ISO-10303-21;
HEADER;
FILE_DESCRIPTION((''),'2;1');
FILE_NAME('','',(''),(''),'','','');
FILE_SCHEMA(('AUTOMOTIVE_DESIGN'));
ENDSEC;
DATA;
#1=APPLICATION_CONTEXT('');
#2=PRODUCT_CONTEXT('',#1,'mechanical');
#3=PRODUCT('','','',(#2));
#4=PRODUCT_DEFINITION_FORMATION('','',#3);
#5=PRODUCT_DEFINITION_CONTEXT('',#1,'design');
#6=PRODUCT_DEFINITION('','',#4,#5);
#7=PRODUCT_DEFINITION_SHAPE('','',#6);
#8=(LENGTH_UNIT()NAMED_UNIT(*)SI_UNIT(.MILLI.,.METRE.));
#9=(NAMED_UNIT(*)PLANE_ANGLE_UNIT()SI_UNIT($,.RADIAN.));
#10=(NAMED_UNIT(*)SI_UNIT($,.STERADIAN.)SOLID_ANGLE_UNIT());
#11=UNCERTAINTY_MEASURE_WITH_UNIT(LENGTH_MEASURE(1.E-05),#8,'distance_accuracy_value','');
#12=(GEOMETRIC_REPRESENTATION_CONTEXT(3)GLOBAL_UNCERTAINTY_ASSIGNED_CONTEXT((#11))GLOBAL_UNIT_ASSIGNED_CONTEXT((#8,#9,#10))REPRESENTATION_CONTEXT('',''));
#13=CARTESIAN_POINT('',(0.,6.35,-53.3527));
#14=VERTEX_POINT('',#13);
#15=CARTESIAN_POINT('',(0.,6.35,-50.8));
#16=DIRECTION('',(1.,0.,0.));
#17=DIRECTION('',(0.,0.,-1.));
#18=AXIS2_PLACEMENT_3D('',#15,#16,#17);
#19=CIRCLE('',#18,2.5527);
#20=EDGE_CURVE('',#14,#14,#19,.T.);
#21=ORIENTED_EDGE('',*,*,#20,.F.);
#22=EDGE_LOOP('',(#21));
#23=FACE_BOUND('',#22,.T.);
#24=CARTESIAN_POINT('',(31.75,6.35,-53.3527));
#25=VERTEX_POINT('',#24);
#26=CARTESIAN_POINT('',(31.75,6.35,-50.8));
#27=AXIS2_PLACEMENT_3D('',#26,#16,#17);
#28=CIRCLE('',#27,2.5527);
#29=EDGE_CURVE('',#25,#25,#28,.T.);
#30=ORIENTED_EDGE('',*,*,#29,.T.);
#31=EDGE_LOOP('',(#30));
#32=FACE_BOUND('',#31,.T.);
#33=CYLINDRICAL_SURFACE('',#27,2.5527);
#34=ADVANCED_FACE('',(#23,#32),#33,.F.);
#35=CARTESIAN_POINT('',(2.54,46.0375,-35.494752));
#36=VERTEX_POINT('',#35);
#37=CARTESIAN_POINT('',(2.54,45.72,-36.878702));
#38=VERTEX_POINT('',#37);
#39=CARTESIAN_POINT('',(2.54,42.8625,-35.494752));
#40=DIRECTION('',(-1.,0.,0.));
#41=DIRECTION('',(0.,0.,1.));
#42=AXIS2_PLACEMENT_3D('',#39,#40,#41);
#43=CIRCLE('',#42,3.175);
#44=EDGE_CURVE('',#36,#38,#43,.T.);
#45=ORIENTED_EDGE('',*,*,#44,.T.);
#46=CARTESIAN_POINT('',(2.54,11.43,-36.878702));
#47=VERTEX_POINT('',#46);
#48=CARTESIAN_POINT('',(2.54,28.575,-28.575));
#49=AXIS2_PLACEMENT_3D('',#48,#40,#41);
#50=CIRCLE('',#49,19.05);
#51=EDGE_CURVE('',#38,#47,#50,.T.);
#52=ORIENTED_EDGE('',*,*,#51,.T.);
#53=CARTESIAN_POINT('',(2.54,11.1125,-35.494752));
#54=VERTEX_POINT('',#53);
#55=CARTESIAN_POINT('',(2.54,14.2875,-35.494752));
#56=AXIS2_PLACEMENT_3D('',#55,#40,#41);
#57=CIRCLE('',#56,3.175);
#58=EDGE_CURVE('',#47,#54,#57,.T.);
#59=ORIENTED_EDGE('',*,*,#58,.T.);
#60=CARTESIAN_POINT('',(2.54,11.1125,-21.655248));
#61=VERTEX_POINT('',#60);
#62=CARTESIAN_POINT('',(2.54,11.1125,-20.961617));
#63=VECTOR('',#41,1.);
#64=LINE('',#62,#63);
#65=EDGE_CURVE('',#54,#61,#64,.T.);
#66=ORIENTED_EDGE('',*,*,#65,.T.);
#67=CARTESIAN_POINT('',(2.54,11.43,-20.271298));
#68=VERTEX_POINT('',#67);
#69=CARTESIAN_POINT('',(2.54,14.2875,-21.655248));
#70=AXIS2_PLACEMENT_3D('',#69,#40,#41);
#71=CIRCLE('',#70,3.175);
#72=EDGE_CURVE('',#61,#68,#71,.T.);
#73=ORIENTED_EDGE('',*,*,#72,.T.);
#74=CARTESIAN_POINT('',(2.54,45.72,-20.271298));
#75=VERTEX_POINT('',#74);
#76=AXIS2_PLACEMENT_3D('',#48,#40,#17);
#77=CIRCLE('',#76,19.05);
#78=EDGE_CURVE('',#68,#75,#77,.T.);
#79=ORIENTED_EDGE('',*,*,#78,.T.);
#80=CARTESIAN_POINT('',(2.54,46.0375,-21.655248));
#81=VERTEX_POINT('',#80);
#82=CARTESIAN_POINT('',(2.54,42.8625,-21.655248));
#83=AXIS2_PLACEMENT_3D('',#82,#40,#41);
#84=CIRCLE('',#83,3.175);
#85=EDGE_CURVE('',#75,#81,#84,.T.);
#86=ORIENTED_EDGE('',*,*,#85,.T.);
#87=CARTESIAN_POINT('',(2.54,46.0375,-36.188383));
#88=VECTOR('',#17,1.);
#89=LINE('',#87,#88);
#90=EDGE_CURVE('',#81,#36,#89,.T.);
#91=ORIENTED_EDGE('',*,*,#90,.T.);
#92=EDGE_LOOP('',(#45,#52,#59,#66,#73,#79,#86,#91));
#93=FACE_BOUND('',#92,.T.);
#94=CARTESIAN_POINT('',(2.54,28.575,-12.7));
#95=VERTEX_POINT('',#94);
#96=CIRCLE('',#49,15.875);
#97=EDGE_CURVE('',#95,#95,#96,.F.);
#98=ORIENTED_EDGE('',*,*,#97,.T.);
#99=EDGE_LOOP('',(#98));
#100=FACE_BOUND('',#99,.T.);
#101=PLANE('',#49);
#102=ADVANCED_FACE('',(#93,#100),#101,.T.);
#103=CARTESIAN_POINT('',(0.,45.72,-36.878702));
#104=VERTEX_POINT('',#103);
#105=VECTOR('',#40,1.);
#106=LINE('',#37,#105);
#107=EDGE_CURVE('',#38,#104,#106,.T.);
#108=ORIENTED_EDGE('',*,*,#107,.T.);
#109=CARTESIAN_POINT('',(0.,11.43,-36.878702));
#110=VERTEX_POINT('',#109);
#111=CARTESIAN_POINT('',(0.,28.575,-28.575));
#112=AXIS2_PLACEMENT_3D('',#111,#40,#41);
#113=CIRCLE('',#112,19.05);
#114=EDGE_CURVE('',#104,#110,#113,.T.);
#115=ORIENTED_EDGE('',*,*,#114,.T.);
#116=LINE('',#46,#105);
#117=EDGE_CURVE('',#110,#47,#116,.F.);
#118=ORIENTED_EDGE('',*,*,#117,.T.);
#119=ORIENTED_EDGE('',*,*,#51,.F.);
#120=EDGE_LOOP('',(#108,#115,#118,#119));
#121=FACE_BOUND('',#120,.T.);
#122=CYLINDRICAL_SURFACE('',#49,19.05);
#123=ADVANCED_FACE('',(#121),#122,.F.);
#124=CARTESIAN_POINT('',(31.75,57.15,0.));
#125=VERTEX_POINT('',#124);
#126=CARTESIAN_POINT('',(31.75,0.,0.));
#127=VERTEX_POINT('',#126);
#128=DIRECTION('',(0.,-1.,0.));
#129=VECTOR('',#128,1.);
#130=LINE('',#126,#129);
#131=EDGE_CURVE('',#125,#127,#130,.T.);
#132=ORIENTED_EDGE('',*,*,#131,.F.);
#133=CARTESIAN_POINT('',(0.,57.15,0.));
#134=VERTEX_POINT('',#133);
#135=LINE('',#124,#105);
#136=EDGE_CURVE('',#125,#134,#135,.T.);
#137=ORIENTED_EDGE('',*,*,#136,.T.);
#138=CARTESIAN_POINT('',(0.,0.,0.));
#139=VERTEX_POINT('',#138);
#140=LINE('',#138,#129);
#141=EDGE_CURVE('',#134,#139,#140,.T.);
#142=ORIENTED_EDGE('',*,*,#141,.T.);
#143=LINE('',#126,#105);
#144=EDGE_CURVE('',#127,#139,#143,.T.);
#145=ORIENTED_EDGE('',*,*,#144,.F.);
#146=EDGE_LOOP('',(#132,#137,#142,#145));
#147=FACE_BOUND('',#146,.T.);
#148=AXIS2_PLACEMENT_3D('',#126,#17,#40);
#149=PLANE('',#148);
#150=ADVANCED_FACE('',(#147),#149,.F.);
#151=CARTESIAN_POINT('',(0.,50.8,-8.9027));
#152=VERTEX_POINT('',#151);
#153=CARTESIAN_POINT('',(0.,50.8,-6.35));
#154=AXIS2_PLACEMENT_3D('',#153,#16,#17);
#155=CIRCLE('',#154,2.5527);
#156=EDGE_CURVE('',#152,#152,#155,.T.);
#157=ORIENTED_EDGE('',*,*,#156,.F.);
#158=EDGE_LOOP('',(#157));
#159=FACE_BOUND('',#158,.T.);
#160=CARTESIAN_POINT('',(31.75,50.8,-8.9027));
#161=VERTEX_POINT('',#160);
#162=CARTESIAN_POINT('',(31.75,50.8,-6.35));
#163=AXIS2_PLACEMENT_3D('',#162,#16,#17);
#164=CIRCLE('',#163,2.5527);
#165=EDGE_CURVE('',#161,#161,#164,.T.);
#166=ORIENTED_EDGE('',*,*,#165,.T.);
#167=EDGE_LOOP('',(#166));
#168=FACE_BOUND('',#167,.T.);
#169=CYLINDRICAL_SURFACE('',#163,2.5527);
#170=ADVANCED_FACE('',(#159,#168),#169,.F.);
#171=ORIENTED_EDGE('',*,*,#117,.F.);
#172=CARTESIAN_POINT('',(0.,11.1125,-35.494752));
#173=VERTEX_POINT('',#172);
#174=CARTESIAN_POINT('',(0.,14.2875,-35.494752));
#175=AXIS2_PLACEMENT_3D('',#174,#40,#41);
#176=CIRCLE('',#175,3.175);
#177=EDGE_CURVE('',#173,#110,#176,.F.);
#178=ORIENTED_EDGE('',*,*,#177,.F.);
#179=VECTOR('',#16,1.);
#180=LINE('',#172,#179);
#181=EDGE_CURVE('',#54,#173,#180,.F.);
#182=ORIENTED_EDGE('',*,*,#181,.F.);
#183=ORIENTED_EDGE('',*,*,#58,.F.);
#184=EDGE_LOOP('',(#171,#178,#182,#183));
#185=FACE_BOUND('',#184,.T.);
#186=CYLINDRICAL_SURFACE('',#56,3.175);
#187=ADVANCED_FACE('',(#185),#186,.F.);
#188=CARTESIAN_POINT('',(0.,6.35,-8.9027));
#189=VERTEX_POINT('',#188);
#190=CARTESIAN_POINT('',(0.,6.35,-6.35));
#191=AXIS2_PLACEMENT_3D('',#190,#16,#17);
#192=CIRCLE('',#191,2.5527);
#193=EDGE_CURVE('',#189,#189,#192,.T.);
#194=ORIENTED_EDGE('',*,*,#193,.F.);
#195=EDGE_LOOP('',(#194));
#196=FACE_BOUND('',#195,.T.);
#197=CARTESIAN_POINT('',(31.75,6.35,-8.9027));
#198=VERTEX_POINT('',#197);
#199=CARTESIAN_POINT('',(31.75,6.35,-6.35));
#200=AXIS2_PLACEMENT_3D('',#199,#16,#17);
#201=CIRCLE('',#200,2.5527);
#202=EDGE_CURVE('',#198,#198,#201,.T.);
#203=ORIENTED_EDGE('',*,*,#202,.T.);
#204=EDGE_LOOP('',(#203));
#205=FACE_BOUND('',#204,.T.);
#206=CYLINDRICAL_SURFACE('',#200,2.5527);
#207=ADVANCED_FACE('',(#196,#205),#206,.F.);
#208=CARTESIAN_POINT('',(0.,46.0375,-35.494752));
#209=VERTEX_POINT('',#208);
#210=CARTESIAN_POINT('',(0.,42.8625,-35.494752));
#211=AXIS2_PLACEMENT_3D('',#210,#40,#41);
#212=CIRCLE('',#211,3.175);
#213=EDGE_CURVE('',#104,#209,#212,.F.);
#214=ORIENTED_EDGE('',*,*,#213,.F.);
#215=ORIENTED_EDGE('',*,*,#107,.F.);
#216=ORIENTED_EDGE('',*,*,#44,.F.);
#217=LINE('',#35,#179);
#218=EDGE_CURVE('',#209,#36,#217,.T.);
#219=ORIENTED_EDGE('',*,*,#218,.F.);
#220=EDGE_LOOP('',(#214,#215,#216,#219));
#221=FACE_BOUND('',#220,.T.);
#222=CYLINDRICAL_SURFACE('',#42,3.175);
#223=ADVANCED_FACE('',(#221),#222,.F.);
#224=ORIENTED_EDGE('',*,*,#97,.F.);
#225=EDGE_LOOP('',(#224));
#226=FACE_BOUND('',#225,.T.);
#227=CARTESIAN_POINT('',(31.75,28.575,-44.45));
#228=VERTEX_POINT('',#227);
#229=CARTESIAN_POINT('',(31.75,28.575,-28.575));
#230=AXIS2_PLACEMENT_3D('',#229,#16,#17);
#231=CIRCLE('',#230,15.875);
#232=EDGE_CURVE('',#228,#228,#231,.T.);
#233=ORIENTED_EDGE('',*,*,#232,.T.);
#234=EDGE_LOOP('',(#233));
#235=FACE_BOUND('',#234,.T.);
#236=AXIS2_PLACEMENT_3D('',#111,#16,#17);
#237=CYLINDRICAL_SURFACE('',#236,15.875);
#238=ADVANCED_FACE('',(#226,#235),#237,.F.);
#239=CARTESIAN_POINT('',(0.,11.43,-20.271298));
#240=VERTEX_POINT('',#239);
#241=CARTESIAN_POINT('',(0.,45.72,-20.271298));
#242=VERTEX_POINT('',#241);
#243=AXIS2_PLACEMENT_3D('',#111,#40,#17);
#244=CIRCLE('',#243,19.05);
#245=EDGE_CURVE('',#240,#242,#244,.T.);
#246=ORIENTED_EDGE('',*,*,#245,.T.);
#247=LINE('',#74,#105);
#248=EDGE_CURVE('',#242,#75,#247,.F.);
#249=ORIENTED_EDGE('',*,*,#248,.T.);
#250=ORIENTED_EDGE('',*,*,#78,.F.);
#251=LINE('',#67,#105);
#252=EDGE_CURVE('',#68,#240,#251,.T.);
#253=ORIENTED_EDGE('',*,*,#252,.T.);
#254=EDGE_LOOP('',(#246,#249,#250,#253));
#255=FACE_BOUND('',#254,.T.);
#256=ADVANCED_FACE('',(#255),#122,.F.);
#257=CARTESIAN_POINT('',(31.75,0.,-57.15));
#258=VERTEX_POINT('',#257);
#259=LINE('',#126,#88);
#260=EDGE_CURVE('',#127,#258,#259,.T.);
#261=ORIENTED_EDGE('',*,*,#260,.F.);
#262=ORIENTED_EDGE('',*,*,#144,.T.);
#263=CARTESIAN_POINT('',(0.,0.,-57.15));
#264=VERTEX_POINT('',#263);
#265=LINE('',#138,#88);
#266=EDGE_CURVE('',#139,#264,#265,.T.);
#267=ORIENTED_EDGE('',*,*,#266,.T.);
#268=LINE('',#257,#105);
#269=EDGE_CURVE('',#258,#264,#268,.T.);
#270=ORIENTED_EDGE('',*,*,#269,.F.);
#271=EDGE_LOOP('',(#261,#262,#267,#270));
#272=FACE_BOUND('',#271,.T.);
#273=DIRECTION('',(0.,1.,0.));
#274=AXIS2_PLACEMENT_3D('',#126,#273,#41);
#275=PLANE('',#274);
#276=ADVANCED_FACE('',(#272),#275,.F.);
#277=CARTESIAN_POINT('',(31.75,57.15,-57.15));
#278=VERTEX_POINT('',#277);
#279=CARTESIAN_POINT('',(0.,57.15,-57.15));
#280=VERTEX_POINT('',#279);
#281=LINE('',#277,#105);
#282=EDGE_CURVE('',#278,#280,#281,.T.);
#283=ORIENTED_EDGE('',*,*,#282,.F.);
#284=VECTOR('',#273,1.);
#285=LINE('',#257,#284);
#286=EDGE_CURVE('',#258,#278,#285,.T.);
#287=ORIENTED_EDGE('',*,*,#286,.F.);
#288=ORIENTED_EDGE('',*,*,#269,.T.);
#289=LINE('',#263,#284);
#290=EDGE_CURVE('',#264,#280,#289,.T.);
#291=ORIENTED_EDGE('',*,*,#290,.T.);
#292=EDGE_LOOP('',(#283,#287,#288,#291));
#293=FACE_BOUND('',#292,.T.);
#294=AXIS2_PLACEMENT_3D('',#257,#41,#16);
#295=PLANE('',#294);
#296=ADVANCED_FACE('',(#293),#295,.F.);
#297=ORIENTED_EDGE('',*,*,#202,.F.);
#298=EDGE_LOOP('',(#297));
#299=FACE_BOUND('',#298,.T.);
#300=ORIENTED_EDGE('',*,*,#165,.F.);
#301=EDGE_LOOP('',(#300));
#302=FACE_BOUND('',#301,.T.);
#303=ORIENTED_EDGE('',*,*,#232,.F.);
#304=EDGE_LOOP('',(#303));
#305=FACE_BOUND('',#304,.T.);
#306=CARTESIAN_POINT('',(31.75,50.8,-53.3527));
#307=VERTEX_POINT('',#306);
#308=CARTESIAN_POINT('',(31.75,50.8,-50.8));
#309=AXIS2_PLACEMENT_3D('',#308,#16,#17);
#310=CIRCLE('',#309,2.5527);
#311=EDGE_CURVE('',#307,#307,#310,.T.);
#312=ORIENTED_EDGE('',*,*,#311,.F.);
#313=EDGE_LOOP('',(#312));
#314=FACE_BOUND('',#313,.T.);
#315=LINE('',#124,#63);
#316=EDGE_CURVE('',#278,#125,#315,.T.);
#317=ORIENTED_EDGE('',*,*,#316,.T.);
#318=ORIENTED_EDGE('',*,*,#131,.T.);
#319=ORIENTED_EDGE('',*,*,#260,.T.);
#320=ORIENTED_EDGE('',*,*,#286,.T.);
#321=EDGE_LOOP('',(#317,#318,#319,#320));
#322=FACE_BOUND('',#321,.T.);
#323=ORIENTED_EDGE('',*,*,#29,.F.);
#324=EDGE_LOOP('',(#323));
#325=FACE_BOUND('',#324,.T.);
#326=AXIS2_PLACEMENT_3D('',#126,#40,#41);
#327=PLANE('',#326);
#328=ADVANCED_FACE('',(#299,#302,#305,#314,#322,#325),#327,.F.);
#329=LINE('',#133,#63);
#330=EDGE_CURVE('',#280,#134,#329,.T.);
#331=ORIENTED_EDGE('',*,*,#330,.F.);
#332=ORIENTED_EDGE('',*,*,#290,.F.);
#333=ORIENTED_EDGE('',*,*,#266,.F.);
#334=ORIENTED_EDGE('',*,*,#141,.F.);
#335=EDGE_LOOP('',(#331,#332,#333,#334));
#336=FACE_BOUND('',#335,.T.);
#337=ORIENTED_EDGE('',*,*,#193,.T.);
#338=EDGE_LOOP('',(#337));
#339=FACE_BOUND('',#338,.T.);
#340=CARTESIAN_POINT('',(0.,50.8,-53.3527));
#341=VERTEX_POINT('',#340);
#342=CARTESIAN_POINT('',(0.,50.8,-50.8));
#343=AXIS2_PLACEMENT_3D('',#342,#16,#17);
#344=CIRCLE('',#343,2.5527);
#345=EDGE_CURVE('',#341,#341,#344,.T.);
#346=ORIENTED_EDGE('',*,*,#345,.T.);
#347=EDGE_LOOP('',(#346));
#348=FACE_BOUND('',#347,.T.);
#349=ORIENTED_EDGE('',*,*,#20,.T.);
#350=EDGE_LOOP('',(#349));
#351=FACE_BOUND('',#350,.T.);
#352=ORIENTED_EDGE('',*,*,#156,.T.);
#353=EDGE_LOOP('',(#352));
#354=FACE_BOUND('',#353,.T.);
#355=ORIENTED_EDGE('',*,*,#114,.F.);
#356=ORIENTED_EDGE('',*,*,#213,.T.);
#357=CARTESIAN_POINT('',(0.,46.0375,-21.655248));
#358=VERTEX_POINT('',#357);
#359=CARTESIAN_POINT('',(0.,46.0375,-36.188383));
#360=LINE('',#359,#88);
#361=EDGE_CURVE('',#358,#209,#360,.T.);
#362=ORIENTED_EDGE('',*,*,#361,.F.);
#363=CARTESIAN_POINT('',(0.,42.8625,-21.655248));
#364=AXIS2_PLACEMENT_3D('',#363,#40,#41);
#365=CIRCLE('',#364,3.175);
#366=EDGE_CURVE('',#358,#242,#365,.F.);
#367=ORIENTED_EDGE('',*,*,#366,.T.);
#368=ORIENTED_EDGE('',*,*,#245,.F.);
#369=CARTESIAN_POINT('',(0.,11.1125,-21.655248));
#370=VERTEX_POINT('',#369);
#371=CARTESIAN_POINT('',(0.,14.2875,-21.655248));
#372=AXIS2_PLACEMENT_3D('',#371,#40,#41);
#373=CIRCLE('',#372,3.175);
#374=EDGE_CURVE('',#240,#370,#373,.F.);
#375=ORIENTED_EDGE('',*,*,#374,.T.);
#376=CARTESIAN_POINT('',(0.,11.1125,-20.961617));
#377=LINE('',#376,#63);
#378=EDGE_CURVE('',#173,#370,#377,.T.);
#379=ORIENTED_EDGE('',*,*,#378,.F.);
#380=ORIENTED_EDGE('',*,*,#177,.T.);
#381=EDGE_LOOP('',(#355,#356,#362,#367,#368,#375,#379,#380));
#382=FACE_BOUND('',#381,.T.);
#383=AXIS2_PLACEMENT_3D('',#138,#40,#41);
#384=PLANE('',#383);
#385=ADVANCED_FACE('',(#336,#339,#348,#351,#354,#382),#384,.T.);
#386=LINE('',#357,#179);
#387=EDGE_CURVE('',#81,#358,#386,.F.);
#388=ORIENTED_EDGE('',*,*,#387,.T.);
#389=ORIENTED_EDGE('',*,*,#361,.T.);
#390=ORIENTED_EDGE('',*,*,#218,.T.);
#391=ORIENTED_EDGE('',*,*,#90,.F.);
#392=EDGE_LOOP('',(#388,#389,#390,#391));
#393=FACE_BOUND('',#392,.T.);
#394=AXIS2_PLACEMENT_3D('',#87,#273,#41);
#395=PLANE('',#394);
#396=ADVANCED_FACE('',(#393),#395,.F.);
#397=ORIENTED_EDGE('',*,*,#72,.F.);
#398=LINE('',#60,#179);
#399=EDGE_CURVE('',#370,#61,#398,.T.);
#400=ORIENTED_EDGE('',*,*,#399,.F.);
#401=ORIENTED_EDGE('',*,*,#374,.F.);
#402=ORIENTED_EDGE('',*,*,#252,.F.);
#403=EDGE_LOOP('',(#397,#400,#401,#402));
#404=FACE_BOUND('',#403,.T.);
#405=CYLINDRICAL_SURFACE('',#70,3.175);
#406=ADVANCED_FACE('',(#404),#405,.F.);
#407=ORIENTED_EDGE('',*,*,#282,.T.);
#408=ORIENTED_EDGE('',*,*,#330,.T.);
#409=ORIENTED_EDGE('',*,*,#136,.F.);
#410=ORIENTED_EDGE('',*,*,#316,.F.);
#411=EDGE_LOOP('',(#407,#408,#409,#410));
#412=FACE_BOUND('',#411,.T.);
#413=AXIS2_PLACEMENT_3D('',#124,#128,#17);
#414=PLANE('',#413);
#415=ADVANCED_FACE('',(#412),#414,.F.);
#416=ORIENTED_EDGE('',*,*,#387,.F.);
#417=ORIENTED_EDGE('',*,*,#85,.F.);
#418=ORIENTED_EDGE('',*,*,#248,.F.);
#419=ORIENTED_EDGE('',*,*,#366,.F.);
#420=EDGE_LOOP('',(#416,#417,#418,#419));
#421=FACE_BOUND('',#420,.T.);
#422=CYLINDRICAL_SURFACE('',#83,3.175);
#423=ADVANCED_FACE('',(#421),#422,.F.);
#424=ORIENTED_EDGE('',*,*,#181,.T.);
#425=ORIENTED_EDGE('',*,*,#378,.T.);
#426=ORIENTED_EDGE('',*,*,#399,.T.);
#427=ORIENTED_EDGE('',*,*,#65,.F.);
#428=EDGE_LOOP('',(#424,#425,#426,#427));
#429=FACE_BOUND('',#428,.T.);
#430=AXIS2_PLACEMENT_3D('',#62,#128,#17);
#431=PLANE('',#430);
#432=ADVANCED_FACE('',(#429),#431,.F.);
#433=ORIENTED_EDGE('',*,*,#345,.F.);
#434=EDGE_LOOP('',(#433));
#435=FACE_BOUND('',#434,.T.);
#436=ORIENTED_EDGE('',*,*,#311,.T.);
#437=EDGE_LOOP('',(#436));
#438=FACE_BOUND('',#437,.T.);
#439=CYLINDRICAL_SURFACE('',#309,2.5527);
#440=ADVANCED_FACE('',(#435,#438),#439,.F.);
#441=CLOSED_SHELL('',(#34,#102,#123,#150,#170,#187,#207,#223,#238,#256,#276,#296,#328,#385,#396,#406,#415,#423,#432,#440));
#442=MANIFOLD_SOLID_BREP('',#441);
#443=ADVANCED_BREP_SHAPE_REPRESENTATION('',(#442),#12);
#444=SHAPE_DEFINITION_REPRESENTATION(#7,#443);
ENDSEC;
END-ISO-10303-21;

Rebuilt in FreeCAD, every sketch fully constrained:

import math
import FreeCAD as App
import Part
import Sketcher
Q = App.Units.Quantity


def edges_at(feature, points):
    """Names of the edges that pass closest to the given points."""
    edges = feature.Shape.Edges
    near = lambda p: min(range(len(edges)), key=lambda i: edges[i].distToShape(Part.Vertex(*p))[0])
    return sorted({f"Edge{near(p) + 1}" for p in points})

doc = App.newDocument("Part")
body = doc.addObject("PartDesign::Body", "Body")

sketch1 = body.newObject("Sketcher::SketchObject", "Sketch")
sketch1.AttachmentSupport = (doc.getObject("YZ_Plane"), [""])
sketch1.MapMode = "FlatFace"
sketch1.addGeometry([
    Part.LineSegment(App.Vector(57, 0, 0), App.Vector(0, 0, 0)),
    Part.LineSegment(App.Vector(0, 0, 0), App.Vector(0, -57, 0)),
    Part.LineSegment(App.Vector(0, -57, 0), App.Vector(57, -57, 0)),
    Part.LineSegment(App.Vector(57, -57, 0), App.Vector(57, 0, 0)),
], False)
sketch1.addConstraint([
    Sketcher.Constraint("Coincident", 0, 2, 1, 1),
    Sketcher.Constraint("Coincident", 1, 2, 2, 1),
    Sketcher.Constraint("Coincident", 2, 2, 3, 1),
    Sketcher.Constraint("Coincident", 3, 2, 0, 1),
    Sketcher.Constraint("Horizontal", 0),
    Sketcher.Constraint("Vertical", 1),
    Sketcher.Constraint("Horizontal", 2),
    Sketcher.Constraint("Vertical", 3),
    Sketcher.Constraint("Coincident", 0, 2, -1, 1),
    Sketcher.Constraint("Equal", 2, 1),
    Sketcher.Constraint("DistanceX", 0, 2, 0, 1, Q("2.25 in")),
])
pad1 = body.newObject("PartDesign::Pad", "Pad")
pad1.Profile = sketch1
pad1.Length = Q("1.25 in")

sketch2 = body.newObject("Sketcher::SketchObject", "Sketch001")
sketch2.AttachmentSupport = (doc.getObject("YZ_Plane"), [""])
sketch2.MapMode = "FlatFace"
sketch2.AttachmentOffset = App.Placement(App.Vector(0, 0, 1.25 * 25.4), App.Rotation())
sketch2.addGeometry(Part.Circle(App.Vector(29, -29, 0), App.Vector(0, 0, 1), 16), False)
sketch2.addConstraint([
    Sketcher.Constraint("Diameter", 0, Q("1.25 in")),
    Sketcher.Constraint("DistanceX", -1, 1, 0, 3, Q("1.125 in")),
    Sketcher.Constraint("DistanceY", 0, 3, -1, 1, Q("1.125 in")),
])
pocket1 = body.newObject("PartDesign::Pocket", "Pocket")
pocket1.Profile = sketch2
pocket1.Type = "ThroughAll"

sketch3 = body.newObject("Sketcher::SketchObject", "Sketch002")
sketch3.AttachmentSupport = (doc.getObject("YZ_Plane"), [""])
sketch3.MapMode = "FlatFace"
sketch3.addGeometry([
    Part.LineSegment(App.Vector(46, -21, 0), App.Vector(46, -36, 0)),
    Part.ArcOfCircle(Part.Circle(App.Vector(29, -29, 0), App.Vector(0, 0, 1), 19), math.radians(-156), math.radians(-24)),
    Part.LineSegment(App.Vector(11, -36, 0), App.Vector(11, -21, 0)),
    Part.ArcOfCircle(Part.Circle(App.Vector(29, -29, 0), App.Vector(0, 0, 1), 19), math.radians(24), math.radians(156)),
], False)
sketch3.addConstraint([
    Sketcher.Constraint("Coincident", 0, 2, 1, 2),
    Sketcher.Constraint("Coincident", 1, 1, 2, 1),
    Sketcher.Constraint("Coincident", 2, 2, 3, 2),
    Sketcher.Constraint("Coincident", 3, 1, 0, 1),
    Sketcher.Constraint("Vertical", 0),
    Sketcher.Constraint("Vertical", 2),
    Sketcher.Constraint("Coincident", 3, 3, 1, 3),
    Sketcher.Constraint("Equal", 1, 3),
    Sketcher.Constraint("Horizontal", 0, 2, 1, 1),
    Sketcher.Constraint("Radius", 1, Q("0.75 in")),
    Sketcher.Constraint("DistanceX", -1, 1, 1, 3, Q("1.125 in")),
    Sketcher.Constraint("DistanceY", 1, 3, -1, 1, Q("1.125 in")),
    Sketcher.Constraint("DistanceX", -1, 1, 0, 2, Q("1.8125 in")),
])
pocket2 = body.newObject("PartDesign::Pocket", "Pocket001")
pocket2.Profile = sketch3
pocket2.Length = Q("0.1 in")
pocket2.Reversed = True
doc.recompute()

fillet = body.newObject("PartDesign::Fillet", "Fillet")
fillet.Base = (pocket2, edges_at(pocket2, [
    (1.27, 11.113, -36.188),
    (1.27, 46.038, -36.188),
    (1.27, 46.038, -20.962),
    (1.27, 11.113, -20.962),
]))
fillet.Radius = Q("0.125 in")

sketch4 = body.newObject("Sketcher::SketchObject", "Sketch003")
sketch4.AttachmentSupport = (doc.getObject("YZ_Plane"), [""])
sketch4.MapMode = "FlatFace"
sketch4.AttachmentOffset = App.Placement(App.Vector(0, 0, 1.25 * 25.4), App.Rotation())
sketch4.addGeometry([
    Part.Circle(App.Vector(50.8, -6.3, 0), App.Vector(0, 0, 1), 2.6),
    Part.Circle(App.Vector(50.8, -50.8, 0), App.Vector(0, 0, 1), 2.6),
    Part.Circle(App.Vector(6.3, -50.8, 0), App.Vector(0, 0, 1), 2.6),
    Part.Circle(App.Vector(6.3, -6.3, 0), App.Vector(0, 0, 1), 2.6),
    Part.Circle(App.Vector(28.6, -28.6, 0), App.Vector(0, 0, 1), 2.6),
], False)
sketch4.addConstraint([
    Sketcher.Constraint("Equal", 0, 1),
    Sketcher.Constraint("Equal", 1, 2),
    Sketcher.Constraint("Equal", 2, 3),
    Sketcher.Constraint("Equal", 3, 4),
    Sketcher.Constraint("Horizontal", 1, 3, 2, 3),
    Sketcher.Constraint("Horizontal", 0, 3, 3, 3),
    Sketcher.Constraint("Vertical", 0, 3, 1, 3),
    Sketcher.Constraint("Vertical", 2, 3, 3, 3),
    Sketcher.Constraint("Diameter", 0, Q("0.201 in")),
    Sketcher.Constraint("DistanceX", -1, 1, 0, 3, Q("2 in")),
    Sketcher.Constraint("DistanceY", 1, 3, -1, 1, Q("2 in")),
    Sketcher.Constraint("DistanceY", 0, 3, -1, 1, Q("0.25 in")),
    Sketcher.Constraint("DistanceX", -1, 1, 2, 3, Q("0.25 in")),
    Sketcher.Constraint("DistanceX", -1, 1, 4, 3, Q("1.125 in")),
    Sketcher.Constraint("DistanceY", 4, 3, -1, 1, Q("1.125 in")),
])
doc.recompute()
hole = body.newObject("PartDesign::Hole", "Hole")
hole.Profile = sketch4
hole.ThreadType = "None"
hole.Diameter = Q("0.201 in")
hole.DepthType = "ThroughAll"

doc.recompute()
